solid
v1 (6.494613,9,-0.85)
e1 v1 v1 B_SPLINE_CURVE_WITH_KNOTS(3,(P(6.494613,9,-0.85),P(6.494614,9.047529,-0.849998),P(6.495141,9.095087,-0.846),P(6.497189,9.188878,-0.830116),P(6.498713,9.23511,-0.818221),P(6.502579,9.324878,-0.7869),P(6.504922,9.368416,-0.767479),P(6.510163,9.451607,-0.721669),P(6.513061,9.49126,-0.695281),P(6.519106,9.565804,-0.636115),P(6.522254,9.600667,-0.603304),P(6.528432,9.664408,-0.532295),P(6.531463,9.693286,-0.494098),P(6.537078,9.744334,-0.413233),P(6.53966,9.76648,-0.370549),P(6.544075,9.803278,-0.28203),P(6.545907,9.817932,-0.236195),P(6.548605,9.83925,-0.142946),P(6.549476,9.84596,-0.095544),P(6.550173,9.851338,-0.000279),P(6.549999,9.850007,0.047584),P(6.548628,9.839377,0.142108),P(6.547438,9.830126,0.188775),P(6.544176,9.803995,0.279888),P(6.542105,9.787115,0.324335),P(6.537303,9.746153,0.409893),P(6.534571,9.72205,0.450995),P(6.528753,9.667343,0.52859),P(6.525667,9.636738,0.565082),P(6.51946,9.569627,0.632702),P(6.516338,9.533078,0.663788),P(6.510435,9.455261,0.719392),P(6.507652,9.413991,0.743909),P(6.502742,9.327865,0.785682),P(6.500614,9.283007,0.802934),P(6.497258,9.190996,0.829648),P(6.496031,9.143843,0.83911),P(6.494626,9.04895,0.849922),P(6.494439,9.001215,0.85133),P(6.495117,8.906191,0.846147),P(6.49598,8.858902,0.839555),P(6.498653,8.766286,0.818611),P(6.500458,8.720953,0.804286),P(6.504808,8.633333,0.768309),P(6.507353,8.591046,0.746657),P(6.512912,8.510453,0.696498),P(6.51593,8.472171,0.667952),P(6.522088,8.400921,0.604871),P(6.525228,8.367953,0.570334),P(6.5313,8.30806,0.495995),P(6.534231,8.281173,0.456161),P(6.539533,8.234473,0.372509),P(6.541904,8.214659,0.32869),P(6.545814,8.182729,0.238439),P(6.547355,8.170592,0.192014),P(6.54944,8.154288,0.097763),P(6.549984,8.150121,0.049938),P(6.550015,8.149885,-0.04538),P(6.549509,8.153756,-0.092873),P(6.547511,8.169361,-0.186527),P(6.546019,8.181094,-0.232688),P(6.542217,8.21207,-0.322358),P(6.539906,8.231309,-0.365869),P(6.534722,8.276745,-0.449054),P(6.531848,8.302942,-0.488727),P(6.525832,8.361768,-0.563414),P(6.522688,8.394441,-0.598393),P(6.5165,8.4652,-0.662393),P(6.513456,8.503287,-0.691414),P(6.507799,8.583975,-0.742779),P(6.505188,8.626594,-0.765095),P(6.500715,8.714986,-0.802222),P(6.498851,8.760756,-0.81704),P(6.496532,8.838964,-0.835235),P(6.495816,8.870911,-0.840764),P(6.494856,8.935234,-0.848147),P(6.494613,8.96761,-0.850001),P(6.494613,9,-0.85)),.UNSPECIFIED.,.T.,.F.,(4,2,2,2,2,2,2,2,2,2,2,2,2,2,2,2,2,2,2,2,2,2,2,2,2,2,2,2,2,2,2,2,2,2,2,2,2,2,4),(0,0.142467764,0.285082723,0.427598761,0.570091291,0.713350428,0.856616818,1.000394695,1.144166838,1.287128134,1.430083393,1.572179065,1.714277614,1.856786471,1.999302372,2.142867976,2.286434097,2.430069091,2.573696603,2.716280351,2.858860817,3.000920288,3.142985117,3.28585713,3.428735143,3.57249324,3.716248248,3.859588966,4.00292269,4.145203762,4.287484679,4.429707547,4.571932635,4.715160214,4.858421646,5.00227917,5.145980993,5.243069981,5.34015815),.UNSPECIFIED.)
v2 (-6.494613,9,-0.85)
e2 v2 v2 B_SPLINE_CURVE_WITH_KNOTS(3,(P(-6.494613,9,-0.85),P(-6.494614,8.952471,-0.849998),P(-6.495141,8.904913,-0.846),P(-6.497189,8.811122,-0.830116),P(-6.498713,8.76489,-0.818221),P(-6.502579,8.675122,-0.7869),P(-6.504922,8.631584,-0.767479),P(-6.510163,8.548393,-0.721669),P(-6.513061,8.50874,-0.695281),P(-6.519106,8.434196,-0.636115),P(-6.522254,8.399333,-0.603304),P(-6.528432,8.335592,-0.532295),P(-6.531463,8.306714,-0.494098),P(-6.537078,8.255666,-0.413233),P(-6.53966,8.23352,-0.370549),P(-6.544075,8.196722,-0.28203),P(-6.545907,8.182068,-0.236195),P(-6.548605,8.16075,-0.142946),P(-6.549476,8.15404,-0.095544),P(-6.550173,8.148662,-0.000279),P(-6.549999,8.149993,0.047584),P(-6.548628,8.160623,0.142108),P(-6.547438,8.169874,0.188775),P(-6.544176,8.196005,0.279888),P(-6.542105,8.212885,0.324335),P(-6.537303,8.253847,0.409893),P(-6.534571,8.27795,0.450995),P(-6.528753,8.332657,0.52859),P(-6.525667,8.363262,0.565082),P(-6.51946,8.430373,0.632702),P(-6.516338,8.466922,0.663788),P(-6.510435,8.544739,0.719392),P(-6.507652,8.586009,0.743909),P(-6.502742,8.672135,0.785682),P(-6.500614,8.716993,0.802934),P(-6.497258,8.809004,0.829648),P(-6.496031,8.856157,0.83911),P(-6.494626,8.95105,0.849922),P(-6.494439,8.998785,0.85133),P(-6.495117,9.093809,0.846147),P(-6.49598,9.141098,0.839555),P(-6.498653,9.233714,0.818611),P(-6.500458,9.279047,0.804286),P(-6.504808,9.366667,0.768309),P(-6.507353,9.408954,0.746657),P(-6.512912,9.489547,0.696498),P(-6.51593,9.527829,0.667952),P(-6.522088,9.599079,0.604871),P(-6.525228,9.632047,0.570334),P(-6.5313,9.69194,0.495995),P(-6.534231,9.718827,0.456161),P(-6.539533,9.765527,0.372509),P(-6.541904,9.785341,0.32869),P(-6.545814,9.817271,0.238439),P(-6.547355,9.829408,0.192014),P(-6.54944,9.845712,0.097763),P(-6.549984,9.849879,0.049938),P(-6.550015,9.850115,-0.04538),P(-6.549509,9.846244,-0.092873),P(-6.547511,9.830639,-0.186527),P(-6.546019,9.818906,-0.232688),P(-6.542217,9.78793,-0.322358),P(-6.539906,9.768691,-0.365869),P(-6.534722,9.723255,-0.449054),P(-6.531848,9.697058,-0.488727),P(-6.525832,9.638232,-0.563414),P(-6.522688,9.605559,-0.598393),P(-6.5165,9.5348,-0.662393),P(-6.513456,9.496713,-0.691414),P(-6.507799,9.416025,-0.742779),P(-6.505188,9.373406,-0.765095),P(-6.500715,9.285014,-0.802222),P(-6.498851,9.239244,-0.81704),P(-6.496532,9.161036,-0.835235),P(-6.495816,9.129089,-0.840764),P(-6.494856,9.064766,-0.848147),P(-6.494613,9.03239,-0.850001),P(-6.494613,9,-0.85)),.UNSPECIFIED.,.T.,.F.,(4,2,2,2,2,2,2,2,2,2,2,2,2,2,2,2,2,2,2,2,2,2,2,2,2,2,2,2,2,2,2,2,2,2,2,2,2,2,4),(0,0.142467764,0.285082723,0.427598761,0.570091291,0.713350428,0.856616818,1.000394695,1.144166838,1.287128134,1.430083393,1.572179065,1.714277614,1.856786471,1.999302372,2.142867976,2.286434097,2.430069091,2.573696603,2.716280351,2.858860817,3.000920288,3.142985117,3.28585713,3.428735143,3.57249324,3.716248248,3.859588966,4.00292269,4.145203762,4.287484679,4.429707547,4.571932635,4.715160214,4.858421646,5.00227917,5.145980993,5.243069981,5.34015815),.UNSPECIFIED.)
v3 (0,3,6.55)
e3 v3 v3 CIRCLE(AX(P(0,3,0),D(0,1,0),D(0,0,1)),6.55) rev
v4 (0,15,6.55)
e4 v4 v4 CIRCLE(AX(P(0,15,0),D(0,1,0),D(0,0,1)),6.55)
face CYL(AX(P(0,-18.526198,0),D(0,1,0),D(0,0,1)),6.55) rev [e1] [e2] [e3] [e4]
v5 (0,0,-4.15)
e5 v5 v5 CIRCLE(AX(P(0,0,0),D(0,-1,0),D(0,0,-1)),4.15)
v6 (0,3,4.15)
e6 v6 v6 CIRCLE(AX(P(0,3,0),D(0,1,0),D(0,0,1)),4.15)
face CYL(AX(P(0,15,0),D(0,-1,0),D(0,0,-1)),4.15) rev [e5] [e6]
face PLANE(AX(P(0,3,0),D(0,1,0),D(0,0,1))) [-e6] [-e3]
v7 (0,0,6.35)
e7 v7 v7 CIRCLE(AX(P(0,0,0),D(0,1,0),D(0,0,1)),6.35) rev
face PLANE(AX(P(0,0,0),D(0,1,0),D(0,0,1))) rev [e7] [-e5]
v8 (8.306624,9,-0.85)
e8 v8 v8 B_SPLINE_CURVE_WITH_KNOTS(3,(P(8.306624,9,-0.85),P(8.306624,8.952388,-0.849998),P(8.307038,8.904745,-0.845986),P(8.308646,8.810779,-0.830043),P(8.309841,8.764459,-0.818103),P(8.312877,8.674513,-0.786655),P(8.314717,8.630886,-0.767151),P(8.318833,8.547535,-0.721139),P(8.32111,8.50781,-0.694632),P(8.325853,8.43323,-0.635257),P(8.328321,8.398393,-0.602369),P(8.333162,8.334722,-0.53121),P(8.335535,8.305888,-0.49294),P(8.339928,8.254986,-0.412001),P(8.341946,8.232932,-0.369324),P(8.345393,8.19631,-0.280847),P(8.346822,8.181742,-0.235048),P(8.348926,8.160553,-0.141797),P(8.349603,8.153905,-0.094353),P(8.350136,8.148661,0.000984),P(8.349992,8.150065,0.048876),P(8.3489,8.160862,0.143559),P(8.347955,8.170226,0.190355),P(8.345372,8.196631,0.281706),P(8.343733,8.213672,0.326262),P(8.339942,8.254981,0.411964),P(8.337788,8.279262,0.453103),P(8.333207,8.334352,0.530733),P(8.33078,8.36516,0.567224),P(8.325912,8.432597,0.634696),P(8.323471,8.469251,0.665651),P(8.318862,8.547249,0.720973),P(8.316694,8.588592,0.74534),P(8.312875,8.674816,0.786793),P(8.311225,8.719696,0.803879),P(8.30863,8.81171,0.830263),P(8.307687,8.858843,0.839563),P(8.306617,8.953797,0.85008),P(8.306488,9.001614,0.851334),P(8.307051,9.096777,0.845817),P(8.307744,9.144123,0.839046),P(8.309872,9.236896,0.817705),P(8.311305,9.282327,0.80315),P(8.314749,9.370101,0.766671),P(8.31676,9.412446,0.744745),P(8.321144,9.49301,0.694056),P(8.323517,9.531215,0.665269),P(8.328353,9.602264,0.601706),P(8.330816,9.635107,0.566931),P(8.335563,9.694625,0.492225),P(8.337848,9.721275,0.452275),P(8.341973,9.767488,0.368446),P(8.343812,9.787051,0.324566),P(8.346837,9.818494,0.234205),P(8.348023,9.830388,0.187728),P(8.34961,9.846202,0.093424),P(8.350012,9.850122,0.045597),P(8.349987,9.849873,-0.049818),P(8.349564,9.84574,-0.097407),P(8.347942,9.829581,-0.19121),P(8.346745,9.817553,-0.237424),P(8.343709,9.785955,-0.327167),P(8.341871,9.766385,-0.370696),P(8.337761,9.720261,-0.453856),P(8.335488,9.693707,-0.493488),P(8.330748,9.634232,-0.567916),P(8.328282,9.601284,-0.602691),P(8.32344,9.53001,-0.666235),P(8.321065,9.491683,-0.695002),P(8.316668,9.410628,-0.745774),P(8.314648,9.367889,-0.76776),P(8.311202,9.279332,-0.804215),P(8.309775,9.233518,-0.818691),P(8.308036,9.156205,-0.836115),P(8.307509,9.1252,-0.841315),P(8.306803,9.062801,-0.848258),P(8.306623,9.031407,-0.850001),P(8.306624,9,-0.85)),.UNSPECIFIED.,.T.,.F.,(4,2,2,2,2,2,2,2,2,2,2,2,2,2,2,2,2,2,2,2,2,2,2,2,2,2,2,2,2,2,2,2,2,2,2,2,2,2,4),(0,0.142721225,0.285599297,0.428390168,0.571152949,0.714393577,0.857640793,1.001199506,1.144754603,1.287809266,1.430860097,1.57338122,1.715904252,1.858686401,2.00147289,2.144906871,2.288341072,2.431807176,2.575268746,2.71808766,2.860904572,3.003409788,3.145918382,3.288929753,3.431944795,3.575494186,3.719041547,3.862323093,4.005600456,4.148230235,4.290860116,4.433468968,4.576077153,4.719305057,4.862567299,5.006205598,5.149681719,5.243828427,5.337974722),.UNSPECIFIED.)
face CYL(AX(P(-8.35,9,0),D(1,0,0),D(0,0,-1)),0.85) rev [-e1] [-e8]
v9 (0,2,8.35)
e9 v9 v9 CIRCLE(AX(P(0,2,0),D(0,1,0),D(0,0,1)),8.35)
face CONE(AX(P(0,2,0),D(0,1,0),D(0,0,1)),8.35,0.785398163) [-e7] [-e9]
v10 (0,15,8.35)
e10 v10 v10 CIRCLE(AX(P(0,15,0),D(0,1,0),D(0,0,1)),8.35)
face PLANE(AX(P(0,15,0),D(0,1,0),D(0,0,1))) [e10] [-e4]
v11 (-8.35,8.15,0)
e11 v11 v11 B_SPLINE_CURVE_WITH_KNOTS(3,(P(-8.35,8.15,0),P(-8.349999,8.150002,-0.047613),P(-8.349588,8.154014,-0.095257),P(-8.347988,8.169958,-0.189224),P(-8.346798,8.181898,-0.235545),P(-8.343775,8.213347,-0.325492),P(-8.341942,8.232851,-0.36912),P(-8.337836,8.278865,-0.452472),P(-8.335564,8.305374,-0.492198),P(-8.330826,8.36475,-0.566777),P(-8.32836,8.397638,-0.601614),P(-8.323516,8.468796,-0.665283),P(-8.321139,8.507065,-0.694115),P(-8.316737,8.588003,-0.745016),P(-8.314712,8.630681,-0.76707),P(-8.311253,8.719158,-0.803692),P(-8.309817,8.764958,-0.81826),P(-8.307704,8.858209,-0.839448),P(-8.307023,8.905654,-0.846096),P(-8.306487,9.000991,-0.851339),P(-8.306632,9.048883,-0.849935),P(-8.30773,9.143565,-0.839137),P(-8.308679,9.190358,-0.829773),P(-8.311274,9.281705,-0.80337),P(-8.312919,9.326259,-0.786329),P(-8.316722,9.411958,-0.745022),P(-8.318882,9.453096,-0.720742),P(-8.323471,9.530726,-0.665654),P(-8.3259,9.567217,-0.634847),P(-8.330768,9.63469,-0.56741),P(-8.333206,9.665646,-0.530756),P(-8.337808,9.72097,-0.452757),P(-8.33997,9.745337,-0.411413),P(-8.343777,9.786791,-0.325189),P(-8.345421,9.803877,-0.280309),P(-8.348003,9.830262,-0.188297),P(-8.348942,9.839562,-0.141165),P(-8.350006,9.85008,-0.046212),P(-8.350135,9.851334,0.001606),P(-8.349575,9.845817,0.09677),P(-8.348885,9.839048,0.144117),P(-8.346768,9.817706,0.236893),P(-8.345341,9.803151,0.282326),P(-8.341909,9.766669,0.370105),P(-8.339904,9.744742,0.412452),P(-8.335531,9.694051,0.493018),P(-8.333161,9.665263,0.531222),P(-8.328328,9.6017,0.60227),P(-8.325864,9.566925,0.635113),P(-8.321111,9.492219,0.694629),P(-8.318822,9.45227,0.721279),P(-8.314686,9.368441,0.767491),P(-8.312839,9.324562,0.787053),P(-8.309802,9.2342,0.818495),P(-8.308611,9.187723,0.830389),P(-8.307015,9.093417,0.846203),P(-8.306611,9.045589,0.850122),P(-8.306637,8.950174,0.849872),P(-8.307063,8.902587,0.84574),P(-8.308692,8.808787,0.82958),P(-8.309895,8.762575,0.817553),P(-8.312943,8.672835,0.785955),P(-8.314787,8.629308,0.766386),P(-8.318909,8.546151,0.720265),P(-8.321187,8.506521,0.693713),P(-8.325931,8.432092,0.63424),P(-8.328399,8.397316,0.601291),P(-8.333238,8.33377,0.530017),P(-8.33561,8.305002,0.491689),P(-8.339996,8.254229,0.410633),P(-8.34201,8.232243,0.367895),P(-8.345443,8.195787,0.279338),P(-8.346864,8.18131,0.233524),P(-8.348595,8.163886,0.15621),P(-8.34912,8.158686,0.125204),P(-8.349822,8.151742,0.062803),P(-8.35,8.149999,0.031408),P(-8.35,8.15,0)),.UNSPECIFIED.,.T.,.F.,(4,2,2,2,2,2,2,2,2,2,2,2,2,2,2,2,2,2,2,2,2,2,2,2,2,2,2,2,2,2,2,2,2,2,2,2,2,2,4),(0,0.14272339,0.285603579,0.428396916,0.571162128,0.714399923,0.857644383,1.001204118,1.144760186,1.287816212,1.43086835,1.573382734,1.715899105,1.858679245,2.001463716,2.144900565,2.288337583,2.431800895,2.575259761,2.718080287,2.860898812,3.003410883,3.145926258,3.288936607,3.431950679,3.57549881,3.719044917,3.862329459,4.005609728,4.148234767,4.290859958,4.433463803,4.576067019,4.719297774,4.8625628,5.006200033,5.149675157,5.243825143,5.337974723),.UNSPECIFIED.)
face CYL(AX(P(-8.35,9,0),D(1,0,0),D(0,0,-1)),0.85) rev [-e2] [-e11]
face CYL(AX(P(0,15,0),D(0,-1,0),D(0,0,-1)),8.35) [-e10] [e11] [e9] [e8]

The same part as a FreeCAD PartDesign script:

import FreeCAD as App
import Part
import Sketcher


def edges_at(feature, points):
    """Names of the edges that pass closest to the given points."""
    edges = feature.Shape.Edges
    near = lambda p: min(range(len(edges)), key=lambda i: edges[i].distToShape(Part.Vertex(*p))[0])
    return sorted({f"Edge{near(p) + 1}" for p in points})

doc = App.newDocument("Part")
body = doc.addObject("PartDesign::Body", "Body")

# Sketch on XZ plane
sketch1 = doc.addObject("Sketcher::SketchObject", "Sketch")
body.addObject(sketch1)
sketch1.AttachmentSupport = (doc.XZ_Plane, [""])
sketch1.MapMode = "FlatFace"
sketch1.addGeometry(Part.Circle(App.Vector(0, 0, 0), App.Vector(0, 0, 1), 8), False)
sketch1.addConstraint([
    Sketcher.Constraint("Coincident", 0, 3, -1, 1),
    Sketcher.Constraint("Diameter", 0, 16.7),
])
pad1 = doc.addObject("PartDesign::Pad", "Pad")
body.addObject(pad1)
pad1.Profile = sketch1
pad1.Length = 15
pad1.Reversed = True

# Sketch on XZ plane
sketch2 = doc.addObject("Sketcher::SketchObject", "Sketch001")
body.addObject(sketch2)
sketch2.AttachmentSupport = (doc.XZ_Plane, [""])
sketch2.MapMode = "FlatFace"
sketch2.AttachmentOffset = App.Placement(App.Vector(0, 0, -15), App.Rotation())
sketch2.addGeometry(Part.Circle(App.Vector(0, 0, 0), App.Vector(0, 0, 1), 7), False)
sketch2.addConstraint([
    Sketcher.Constraint("Coincident", 0, 3, -1, 1),
    Sketcher.Constraint("Diameter", 0, 13.1),
])
pocket1 = doc.addObject("PartDesign::Pocket", "Pocket")
body.addObject(pocket1)
pocket1.Profile = sketch2
pocket1.Length = 12
pocket1.Reversed = True

# Sketch on YZ plane
sketch3 = doc.addObject("Sketcher::SketchObject", "Sketch002")
body.addObject(sketch3)
sketch3.AttachmentSupport = (doc.YZ_Plane, [""])
sketch3.MapMode = "FlatFace"
sketch3.addGeometry(Part.Circle(App.Vector(9, 0, 0), App.Vector(0, 0, 1), 0.8), False)
sketch3.addConstraint([
    Sketcher.Constraint("PointOnObject", 0, 3, -1),
    Sketcher.Constraint("Diameter", 0, 1.7),
    Sketcher.Constraint("DistanceX", -1, 1, 0, 3, 9.0),
])
pocket2 = doc.addObject("PartDesign::Pocket", "Pocket001")
body.addObject(pocket2)
pocket2.Profile = sketch3
pocket2.Type = "ThroughAll"
pocket2.Midplane = True

# Sketch on XZ plane
sketch4 = doc.addObject("Sketcher::SketchObject", "Sketch003")
body.addObject(sketch4)
sketch4.AttachmentSupport = (doc.XZ_Plane, [""])
sketch4.MapMode = "FlatFace"
sketch4.addGeometry(Part.Circle(App.Vector(0, 0, 0), App.Vector(0, 0, 1), 4.2), False)
sketch4.addConstraint([
    Sketcher.Constraint("Coincident", 0, 3, -1, 1),
    Sketcher.Constraint("Diameter", 0, 8.3),
])
pocket3 = doc.addObject("PartDesign::Pocket", "Pocket002")
body.addObject(pocket3)
pocket3.Profile = sketch4
pocket3.Type = "ThroughAll"
doc.recompute()

chamfer = doc.addObject("PartDesign::Chamfer", "Chamfer")
body.addObject(chamfer)
chamfer.Base = (pocket3, edges_at(pocket3, [(-8.35, 0, 0)]))
chamfer.Size = 2

doc.recompute()
